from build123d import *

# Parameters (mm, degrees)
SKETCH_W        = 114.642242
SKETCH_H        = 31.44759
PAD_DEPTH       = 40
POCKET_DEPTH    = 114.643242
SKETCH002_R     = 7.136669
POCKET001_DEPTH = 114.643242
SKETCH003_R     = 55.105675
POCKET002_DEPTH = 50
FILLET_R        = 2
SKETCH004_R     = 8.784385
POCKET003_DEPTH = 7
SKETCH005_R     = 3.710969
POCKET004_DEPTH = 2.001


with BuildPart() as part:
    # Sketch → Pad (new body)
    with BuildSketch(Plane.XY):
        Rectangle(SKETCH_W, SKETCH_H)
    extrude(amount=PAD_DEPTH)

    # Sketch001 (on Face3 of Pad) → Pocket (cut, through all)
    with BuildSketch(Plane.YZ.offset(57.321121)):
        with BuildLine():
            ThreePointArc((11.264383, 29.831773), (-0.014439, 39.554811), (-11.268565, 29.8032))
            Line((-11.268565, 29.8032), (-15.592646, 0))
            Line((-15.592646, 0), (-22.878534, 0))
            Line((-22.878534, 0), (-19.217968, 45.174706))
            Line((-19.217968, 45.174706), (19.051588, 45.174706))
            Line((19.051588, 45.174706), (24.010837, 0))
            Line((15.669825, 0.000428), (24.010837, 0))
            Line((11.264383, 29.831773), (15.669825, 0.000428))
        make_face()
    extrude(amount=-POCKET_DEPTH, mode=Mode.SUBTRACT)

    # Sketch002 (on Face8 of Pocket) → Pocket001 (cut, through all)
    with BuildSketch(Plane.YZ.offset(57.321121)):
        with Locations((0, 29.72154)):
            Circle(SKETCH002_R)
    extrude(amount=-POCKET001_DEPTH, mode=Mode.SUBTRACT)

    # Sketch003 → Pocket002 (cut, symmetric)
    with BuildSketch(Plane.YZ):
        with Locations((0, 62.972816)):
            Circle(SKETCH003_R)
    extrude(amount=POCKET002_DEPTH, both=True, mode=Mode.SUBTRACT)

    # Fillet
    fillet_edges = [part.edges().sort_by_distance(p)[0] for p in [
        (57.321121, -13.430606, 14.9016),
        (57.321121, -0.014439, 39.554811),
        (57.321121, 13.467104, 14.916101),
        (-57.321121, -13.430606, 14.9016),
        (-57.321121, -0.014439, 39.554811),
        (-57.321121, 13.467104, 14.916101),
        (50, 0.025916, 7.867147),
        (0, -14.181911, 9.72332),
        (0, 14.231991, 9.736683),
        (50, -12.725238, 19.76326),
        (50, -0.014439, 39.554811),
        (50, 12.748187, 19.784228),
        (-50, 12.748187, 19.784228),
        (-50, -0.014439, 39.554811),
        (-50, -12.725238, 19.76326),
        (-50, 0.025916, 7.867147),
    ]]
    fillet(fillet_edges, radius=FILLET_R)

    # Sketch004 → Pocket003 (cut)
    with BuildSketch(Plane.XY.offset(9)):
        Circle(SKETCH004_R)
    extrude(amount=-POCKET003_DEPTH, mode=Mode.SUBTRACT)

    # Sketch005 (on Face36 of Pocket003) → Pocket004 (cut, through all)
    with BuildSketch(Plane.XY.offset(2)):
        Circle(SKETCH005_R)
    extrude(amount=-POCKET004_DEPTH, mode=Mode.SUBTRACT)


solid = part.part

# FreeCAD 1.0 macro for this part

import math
import FreeCAD as App
import Part
import Sketcher


def edges_at(feature, points):
    """Names of the edges that pass closest to the given points."""
    edges = feature.Shape.Edges
    near = lambda p: min(range(len(edges)), key=lambda i: edges[i].distToShape(Part.Vertex(*p))[0])
    return sorted({f"Edge{near(p) + 1}" for p in points})


def add_polygon(sketch, points):
    """Adds a closed chain of lines whose ends are joined by coincident constraints."""
    first, n = sketch.GeometryCount, len(points)
    for a, b in zip(points, points[1:] + points[:1]):
        sketch.addGeometry(Part.LineSegment(App.Vector(*a, 0), App.Vector(*b, 0)), False)
    for i in range(n):
        sketch.addConstraint(Sketcher.Constraint("Coincident", first + i, 2, first + (i + 1) % n, 1))

doc = App.newDocument("Part")
body = doc.addObject("PartDesign::Body", "Body")

sketch1 = body.newObject("Sketcher::SketchObject", "Sketch")
sketch1.AttachmentSupport = (doc.getObject("XY_Plane"), [""])
sketch1.MapMode = "FlatFace"
add_polygon(sketch1, [(-57, 16), (-57, -16), (57, -16), (57, 16)])
sketch1.addConstraint([
    Sketcher.Constraint("Vertical", 0),
    Sketcher.Constraint("Horizontal", 1),
    Sketcher.Constraint("Vertical", 2),
    Sketcher.Constraint("Horizontal", 3),
    Sketcher.Constraint("Symmetric", 0, 2, 2, 2, -1, 1),
    Sketcher.Constraint("DistanceX", 1, 1, 1, 2, 114.642242),
    Sketcher.Constraint("DistanceY", 0, 2, 0, 1, 31.44759),
])
pad1 = body.newObject("PartDesign::Pad", "Pad")
pad1.Profile = sketch1
pad1.Length = 40

sketch2 = body.newObject("Sketcher::SketchObject", "Sketch001")
sketch2.AttachmentSupport = (doc.getObject("YZ_Plane"), [""])
sketch2.MapMode = "FlatFace"
sketch2.AttachmentOffset = App.Placement(App.Vector(0, 0, 57.321121), App.Rotation())
sketch2.addGeometry([
    Part.ArcOfCircle(Part.Circle(App.Vector(0, 28, 0), App.Vector(0, 0, 1), 11), math.radians(8), math.radians(172)),
    Part.LineSegment(App.Vector(11, 30, 0), App.Vector(16, 0, 0)),
    Part.LineSegment(App.Vector(16, 0, 0), App.Vector(24, 0, 0)),
    Part.LineSegment(App.Vector(24, 0, 0), App.Vector(19, 45, 0)),
    Part.LineSegment(App.Vector(19, 45, 0), App.Vector(-19, 45, 0)),
    Part.LineSegment(App.Vector(-19, 45, 0), App.Vector(-23, 0, 0)),
    Part.LineSegment(App.Vector(-23, 0, 0), App.Vector(-16, 0, 0)),
    Part.LineSegment(App.Vector(-16, 0, 0), App.Vector(-11, 30, 0)),
], False)
sketch2.addConstraint([
    Sketcher.Constraint("Tangent", 0, 1, 1, 1),
    Sketcher.Constraint("Coincident", 1, 2, 2, 1),
    Sketcher.Constraint("Coincident", 2, 2, 3, 1),
    Sketcher.Constraint("Coincident", 3, 2, 4, 1),
    Sketcher.Constraint("Coincident", 4, 2, 5, 1),
    Sketcher.Constraint("Coincident", 5, 2, 6, 1),
    Sketcher.Constraint("Coincident", 6, 2, 7, 1),
    Sketcher.Constraint("Tangent", 7, 2, 0, 2),
    Sketcher.Constraint("Horizontal", 4),
    Sketcher.Constraint("Horizontal", 6),
    Sketcher.Constraint("PointOnObject", 0, 3, -2),
    Sketcher.Constraint("PointOnObject", 2, 2, -1),
    Sketcher.Constraint("PointOnObject", 5, 2, -1),
    Sketcher.Constraint("Radius", 0, 11.386552),
    Sketcher.Constraint("DistanceY", -1, 1, 7, 2, 29.8032),
    Sketcher.Constraint("DistanceX", 4, 2, 4, 1, 38.269556),
    Sketcher.Constraint("DistanceX", 6, 1, 6, 2, 7.285888),
    Sketcher.Constraint("DistanceY", -1, 1, 0, 3, 28.168268),
    Sketcher.Constraint("DistanceY", -1, 1, 1, 2, 0.000428),
    Sketcher.Constraint("DistanceX", 1, 2, 2, 2, 8.341012),
    Sketcher.Constraint("DistanceX", 3, 2, 2, 2, 4.959249),
    Sketcher.Constraint("DistanceX", 4, 2, 0, 3, 19.217968),
    Sketcher.Constraint("Distance", 3, 45.446102),
])
pocket1 = body.newObject("PartDesign::Pocket", "Pocket")
pocket1.Profile = sketch2
pocket1.Type = "ThroughAll"

sketch3 = body.newObject("Sketcher::SketchObject", "Sketch002")
sketch3.AttachmentSupport = (doc.getObject("YZ_Plane"), [""])
sketch3.MapMode = "FlatFace"
sketch3.AttachmentOffset = App.Placement(App.Vector(0, 0, 57.321121), App.Rotation())
sketch3.addGeometry(Part.Circle(App.Vector(0, 30, 0), App.Vector(0, 0, 1), 7), False)
sketch3.addConstraint([
    Sketcher.Constraint("PointOnObject", 0, 3, -2),
    Sketcher.Constraint("Diameter", 0, 14.273338),
    Sketcher.Constraint("DistanceY", -1, 1, 0, 3, 29.72154),
])
pocket2 = body.newObject("PartDesign::Pocket", "Pocket001")
pocket2.Profile = sketch3
pocket2.Type = "ThroughAll"

sketch4 = body.newObject("Sketcher::SketchObject", "Sketch003")
sketch4.AttachmentSupport = (doc.getObject("YZ_Plane"), [""])
sketch4.MapMode = "FlatFace"
sketch4.addGeometry(Part.Circle(App.Vector(0, 63, 0), App.Vector(0, 0, 1), 55), False)
sketch4.addConstraint([
    Sketcher.Constraint("PointOnObject", 0, 3, -2),
    Sketcher.Constraint("Diameter", 0, 110.21135),
    Sketcher.Constraint("DistanceY", -1, 1, 0, 3, 62.972816),
])
pocket3 = body.newObject("PartDesign::Pocket", "Pocket002")
pocket3.Profile = sketch4
pocket3.Length = 100
pocket3.Midplane = True
doc.recompute()

fillet = body.newObject("PartDesign::Fillet", "Fillet")
fillet.Base = (pocket3, edges_at(pocket3, [
    (57.321, -13.431, 14.902),
    (57.321, -0.014, 39.555),
    (57.321, 13.467, 14.916),
    (-57.321, -13.431, 14.902),
    (-57.321, -0.014, 39.555),
    (-57.321, 13.467, 14.916),
    (50, 0.026, 7.867),
    (0, -14.182, 9.723),
    (0, 14.232, 9.737),
    (50, -12.725, 19.763),
    (50, -0.014, 39.555),
    (50, 12.748, 19.784),
    (-50, 12.748, 19.784),
    (-50, -0.014, 39.555),
    (-50, -12.725, 19.763),
    (-50, 0.026, 7.867),
]))
fillet.Radius = 2

sketch5 = body.newObject("Sketcher::SketchObject", "Sketch004")
sketch5.AttachmentSupport = (doc.getObject("XY_Plane"), [""])
sketch5.MapMode = "FlatFace"
sketch5.AttachmentOffset = App.Placement(App.Vector(0, 0, 9), App.Rotation())
sketch5.addGeometry(Part.Circle(App.Vector(0, 0, 0), App.Vector(0, 0, 1), 9), False)
sketch5.addConstraint([
    Sketcher.Constraint("Coincident", 0, 3, -1, 1),
    Sketcher.Constraint("Diameter", 0, 17.56877),
])
pocket4 = body.newObject("PartDesign::Pocket", "Pocket003")
pocket4.Profile = sketch5
pocket4.Length = 7

sketch6 = body.newObject("Sketcher::SketchObject", "Sketch005")
sketch6.AttachmentSupport = (doc.getObject("XY_Plane"), [""])
sketch6.MapMode = "FlatFace"
sketch6.AttachmentOffset = App.Placement(App.Vector(0, 0, 2), App.Rotation())
sketch6.addGeometry(Part.Circle(App.Vector(0, 0, 0), App.Vector(0, 0, 1), 3.7), False)
sketch6.addConstraint([
    Sketcher.Constraint("Coincident", 0, 3, -1, 1),
    Sketcher.Constraint("Diameter", 0, 7.421938),
])
pocket5 = body.newObject("PartDesign::Pocket", "Pocket004")
pocket5.Profile = sketch6
pocket5.Type = "ThroughAll"

doc.recompute()
